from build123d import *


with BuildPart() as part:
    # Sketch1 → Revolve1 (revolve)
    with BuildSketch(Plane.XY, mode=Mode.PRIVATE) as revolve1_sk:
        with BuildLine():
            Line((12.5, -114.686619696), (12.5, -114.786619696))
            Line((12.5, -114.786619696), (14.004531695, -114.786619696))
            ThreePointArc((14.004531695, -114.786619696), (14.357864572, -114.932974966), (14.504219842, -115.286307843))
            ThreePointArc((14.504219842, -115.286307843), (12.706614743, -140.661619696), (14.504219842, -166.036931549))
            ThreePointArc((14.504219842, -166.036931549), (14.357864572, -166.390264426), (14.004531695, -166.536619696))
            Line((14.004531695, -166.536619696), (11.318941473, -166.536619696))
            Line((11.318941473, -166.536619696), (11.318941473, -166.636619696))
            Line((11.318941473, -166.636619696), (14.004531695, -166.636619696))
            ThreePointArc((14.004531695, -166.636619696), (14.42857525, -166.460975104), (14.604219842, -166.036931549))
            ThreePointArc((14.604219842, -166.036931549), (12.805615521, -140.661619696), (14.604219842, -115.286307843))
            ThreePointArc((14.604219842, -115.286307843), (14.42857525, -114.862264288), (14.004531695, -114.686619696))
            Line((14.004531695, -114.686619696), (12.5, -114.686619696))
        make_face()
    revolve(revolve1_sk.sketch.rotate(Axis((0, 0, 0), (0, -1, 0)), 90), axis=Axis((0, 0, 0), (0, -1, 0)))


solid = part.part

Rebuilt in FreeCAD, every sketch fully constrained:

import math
import FreeCAD as App
import Part
import Sketcher
from FreeCAD import Vector
Q = App.Units.Quantity

doc = App.newDocument("Part")
body = doc.addObject("PartDesign::Body", "Body")

sketch1 = doc.addObject("Sketcher::SketchObject", "Sketch")
body.addObject(sketch1)
sketch1.AttachmentSupport = (doc.XY_Plane, [""])
sketch1.MapMode = "FlatFace"
sketch1.addGeometry([
    Part.LineSegment(Vector(12.5, -114.69, 0), Vector(12.5, -114.79, 0)),
    Part.LineSegment(Vector(12.5, -114.79, 0), Vector(14, -114.79, 0)),
    Part.ArcOfCircle(Part.Circle(Vector(14, -115.29, 0), Vector(0, 0, 1), 0.5), math.radians(0), math.radians(90)),
    Part.ArcOfCircle(Part.Circle(Vector(192.71, -140.66, 0), Vector(0, 0, 1), 180), math.radians(171.9), math.radians(188.1)),
    Part.ArcOfCircle(Part.Circle(Vector(14, -166.04, 0), Vector(0, 0, 1), 0.5), math.radians(-90), math.radians(0)),
    Part.LineSegment(Vector(14, -166.54, 0), Vector(11.32, -166.54, 0)),
    Part.LineSegment(Vector(11.32, -166.54, 0), Vector(11.32, -166.64, 0)),
    Part.LineSegment(Vector(11.32, -166.64, 0), Vector(14, -166.64, 0)),
    Part.ArcOfCircle(Part.Circle(Vector(14, -166.04, 0), Vector(0, 0, 1), 0.6), math.radians(-90), math.radians(0)),
    Part.ArcOfCircle(Part.Circle(Vector(192.71, -140.66, 0), Vector(0, 0, 1), 179.9), math.radians(171.89), math.radians(188.11)),
    Part.ArcOfCircle(Part.Circle(Vector(14, -115.29, 0), Vector(0, 0, 1), 0.6), math.radians(0), math.radians(90)),
    Part.LineSegment(Vector(14, -114.69, 0), Vector(12.5, -114.69, 0)),
], False)
sketch1.addConstraint([
    Sketcher.Constraint("Coincident", 0, 2, 1, 1),
    Sketcher.Constraint("Tangent", 1, 2, 2, 2),
    Sketcher.Constraint("Coincident", 2, 1, 3, 1),
    Sketcher.Constraint("Coincident", 3, 2, 4, 2),
    Sketcher.Constraint("Tangent", 4, 1, 5, 1),
    Sketcher.Constraint("Coincident", 5, 2, 6, 1),
    Sketcher.Constraint("Coincident", 6, 2, 7, 1),
    Sketcher.Constraint("Tangent", 7, 2, 8, 1),
    Sketcher.Constraint("Coincident", 8, 2, 9, 2),
    Sketcher.Constraint("Coincident", 9, 1, 10, 1),
    Sketcher.Constraint("Tangent", 10, 2, 11, 1),
    Sketcher.Constraint("Coincident", 11, 2, 0, 1),
    Sketcher.Constraint("Vertical", 0),
    Sketcher.Constraint("Horizontal", 1),
    Sketcher.Constraint("Horizontal", 5),
    Sketcher.Constraint("Vertical", 6),
    Sketcher.Constraint("Horizontal", 7),
    Sketcher.Constraint("Horizontal", 11),
    Sketcher.Constraint("Coincident", 8, 3, 4, 3),
    Sketcher.Constraint("Coincident", 9, 3, 3, 3),
    Sketcher.Constraint("Coincident", 10, 3, 2, 3),
    Sketcher.Constraint("Equal", 2, 4),
    Sketcher.Constraint("Equal", 8, 10),
    Sketcher.Constraint("Horizontal", 10, 3, 2, 1),
    Sketcher.Constraint("Horizontal", 8, 3, 3, 2),
    Sketcher.Constraint("Horizontal", 3, 2, 8, 2),
    Sketcher.Constraint("Vertical", 2, 3, 4, 3),
    Sketcher.Constraint("Radius", 3, Q("180 mm")),
    Sketcher.Constraint("DistanceY", 0, 2, 0, 1, Q("0.1 mm")),
    Sketcher.Constraint("DistanceX", -1, 1, 0, 2, Q("12.5 mm")),
    Sketcher.Constraint("Radius", 2, Q("0.499688 mm")),
    Sketcher.Constraint("DistanceY", 9, 3, 0, 2, Q("25.875 mm")),
    Sketcher.Constraint("DistanceX", 1, 1, 1, 2, Q("1.504532 mm")),
    Sketcher.Constraint("DistanceX", 5, 2, 5, 1, Q("2.68559 mm")),
    Sketcher.Constraint("DistanceY", 3, 3, -1, 1, Q("140.66162 mm")),
])
revolution = doc.addObject("PartDesign::Revolution", "Revolution")
body.addObject(revolution)
revolution.Profile = sketch1
revolution.ReferenceAxis = (sketch1, ["V_Axis"])
revolution.Angle = 360

doc.recompute()
